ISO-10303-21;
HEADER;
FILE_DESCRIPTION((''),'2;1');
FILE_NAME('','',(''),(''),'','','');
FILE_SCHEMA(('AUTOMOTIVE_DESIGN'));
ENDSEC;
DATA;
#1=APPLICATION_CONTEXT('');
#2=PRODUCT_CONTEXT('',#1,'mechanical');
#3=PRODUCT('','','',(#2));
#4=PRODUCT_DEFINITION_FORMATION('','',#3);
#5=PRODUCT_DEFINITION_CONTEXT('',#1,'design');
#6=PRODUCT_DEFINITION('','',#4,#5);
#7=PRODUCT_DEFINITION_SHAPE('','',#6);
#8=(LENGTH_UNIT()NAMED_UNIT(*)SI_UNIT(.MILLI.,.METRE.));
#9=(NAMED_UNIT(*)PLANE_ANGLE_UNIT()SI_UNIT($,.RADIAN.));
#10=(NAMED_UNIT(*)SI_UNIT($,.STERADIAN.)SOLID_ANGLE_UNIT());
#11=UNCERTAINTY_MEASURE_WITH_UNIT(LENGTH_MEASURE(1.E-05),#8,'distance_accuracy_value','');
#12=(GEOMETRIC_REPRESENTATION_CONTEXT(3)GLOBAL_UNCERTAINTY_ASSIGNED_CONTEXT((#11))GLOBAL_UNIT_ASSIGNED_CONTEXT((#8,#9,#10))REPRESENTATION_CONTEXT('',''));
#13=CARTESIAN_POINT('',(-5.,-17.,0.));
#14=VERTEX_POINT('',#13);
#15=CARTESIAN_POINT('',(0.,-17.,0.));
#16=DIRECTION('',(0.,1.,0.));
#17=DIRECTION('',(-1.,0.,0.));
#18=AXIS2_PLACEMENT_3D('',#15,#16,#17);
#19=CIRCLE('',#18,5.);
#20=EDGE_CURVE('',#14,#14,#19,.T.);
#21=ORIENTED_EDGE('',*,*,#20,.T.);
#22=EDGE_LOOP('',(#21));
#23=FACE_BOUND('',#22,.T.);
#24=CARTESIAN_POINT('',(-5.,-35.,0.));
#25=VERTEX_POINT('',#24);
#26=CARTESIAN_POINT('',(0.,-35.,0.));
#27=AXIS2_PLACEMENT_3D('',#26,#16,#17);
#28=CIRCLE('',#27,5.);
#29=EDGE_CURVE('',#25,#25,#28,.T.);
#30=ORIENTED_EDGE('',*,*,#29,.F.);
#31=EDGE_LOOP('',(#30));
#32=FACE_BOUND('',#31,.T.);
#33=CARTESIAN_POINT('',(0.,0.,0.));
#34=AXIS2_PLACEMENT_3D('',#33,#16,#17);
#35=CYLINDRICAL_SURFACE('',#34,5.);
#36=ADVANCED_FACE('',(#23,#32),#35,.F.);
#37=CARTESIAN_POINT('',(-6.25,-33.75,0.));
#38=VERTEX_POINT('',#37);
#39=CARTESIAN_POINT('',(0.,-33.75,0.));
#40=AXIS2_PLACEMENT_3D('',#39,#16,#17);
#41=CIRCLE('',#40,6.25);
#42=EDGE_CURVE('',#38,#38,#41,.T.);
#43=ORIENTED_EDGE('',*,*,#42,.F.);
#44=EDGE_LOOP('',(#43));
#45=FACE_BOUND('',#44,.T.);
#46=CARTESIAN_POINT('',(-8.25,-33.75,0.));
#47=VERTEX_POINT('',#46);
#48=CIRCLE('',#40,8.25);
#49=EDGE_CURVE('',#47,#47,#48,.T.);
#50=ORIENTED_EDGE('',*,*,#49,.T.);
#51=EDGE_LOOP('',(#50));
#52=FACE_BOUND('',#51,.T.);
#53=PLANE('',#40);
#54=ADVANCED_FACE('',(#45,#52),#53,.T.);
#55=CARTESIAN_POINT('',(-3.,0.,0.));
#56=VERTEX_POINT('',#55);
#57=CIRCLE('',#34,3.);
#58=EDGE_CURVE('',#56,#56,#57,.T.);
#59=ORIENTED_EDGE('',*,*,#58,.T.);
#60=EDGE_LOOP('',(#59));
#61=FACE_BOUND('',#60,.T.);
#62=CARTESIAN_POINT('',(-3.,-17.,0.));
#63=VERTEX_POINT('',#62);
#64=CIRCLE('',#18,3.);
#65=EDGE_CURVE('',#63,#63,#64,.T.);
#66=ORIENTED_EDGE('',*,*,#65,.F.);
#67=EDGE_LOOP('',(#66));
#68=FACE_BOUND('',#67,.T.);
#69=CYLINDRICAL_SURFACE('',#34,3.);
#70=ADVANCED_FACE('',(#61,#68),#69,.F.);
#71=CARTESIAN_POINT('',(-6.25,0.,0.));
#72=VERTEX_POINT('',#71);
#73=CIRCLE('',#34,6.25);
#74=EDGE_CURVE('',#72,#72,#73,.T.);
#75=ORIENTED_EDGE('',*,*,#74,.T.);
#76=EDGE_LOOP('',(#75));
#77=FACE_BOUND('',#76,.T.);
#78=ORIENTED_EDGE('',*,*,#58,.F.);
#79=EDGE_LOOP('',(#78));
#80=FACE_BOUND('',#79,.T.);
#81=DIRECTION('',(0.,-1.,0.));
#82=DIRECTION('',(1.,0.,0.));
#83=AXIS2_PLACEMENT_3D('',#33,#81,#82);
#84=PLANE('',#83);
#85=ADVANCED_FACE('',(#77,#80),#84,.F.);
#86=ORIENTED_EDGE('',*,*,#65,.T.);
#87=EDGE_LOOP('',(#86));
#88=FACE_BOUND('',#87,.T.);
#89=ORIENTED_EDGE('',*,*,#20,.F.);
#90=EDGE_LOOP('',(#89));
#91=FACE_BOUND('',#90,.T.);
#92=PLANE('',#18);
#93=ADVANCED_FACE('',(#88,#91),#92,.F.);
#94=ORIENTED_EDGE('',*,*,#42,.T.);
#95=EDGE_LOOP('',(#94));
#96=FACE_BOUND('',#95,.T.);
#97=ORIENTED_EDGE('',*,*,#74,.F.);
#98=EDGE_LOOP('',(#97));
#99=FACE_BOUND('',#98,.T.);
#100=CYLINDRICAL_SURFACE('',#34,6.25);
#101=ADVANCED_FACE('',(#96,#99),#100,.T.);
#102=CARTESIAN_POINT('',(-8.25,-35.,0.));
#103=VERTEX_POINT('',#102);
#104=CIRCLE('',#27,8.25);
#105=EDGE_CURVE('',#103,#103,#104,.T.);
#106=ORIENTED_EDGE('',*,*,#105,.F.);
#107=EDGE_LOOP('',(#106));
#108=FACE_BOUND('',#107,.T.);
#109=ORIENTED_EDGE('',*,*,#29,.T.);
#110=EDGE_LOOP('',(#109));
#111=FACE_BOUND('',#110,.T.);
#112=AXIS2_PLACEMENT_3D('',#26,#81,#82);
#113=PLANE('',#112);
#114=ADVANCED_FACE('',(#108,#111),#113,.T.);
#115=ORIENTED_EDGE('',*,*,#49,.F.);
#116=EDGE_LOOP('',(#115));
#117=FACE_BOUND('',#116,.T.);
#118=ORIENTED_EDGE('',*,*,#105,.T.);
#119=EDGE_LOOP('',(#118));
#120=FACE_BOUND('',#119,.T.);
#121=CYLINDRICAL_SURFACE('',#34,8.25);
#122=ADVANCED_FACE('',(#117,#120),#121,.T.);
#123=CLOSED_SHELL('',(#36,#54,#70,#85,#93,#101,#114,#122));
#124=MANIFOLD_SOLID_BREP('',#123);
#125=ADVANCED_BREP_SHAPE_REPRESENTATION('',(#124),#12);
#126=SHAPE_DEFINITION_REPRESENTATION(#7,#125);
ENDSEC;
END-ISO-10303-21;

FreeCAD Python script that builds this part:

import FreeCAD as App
import Part
import Sketcher
Q = App.Units.Quantity


def add_polygon(sketch, points):
    """Adds a closed chain of lines whose ends are joined by coincident constraints."""
    first, n = sketch.GeometryCount, len(points)
    for a, b in zip(points, points[1:] + points[:1]):
        sketch.addGeometry(Part.LineSegment(App.Vector(*a, 0), App.Vector(*b, 0)), False)
    for i in range(n):
        sketch.addConstraint(Sketcher.Constraint("Coincident", first + i, 2, first + (i + 1) % n, 1))

doc = App.newDocument("Part")
body = doc.addObject("PartDesign::Body", "Body")

# Sketch on XY plane
sketch1 = body.newObject("Sketcher::SketchObject", "Sketch")
sketch1.AttachmentSupport = (doc.getObject("XY_Plane"), [""])
sketch1.MapMode = "FlatFace"
add_polygon(sketch1, [(-5, -35), (-5, -17), (-3, -17), (-3, 0), (-6.2, 0), (-6.2, -33.8), (-8.2, -33.8), (-8.2, -35)])  # lines 0-7
sketch1.addConstraint([
    Sketcher.Constraint("Vertical", 0),
    Sketcher.Constraint("Horizontal", 1),
    Sketcher.Constraint("Vertical", 2),
    Sketcher.Constraint("Horizontal", 3),
    Sketcher.Constraint("Vertical", 4),
    Sketcher.Constraint("Horizontal", 5),
    Sketcher.Constraint("Vertical", 6),
    Sketcher.Constraint("Horizontal", 7),
    Sketcher.Constraint("PointOnObject", 2, 2, -1),
    Sketcher.Constraint("Equal", 1, 5),
    Sketcher.Constraint("DistanceX", 1, 1, 1, 2, Q("2 mm")),
    Sketcher.Constraint("DistanceY", 0, 1, 0, 2, Q("18 mm")),
    Sketcher.Constraint("DistanceY", 2, 1, 2, 2, Q("17 mm")),
    Sketcher.Constraint("DistanceX", 0, 2, -1, 1, Q("5 mm")),
    Sketcher.Constraint("DistanceX", 3, 2, 3, 1, Q("3.25 mm")),
    Sketcher.Constraint("DistanceY", 4, 2, 4, 1, Q("33.75 mm")),
])
revolution = body.newObject("PartDesign::Revolution", "Revolution")
revolution.Profile = sketch1
revolution.ReferenceAxis = (sketch1, ["V_Axis"])
revolution.Angle = 360

doc.recompute()
